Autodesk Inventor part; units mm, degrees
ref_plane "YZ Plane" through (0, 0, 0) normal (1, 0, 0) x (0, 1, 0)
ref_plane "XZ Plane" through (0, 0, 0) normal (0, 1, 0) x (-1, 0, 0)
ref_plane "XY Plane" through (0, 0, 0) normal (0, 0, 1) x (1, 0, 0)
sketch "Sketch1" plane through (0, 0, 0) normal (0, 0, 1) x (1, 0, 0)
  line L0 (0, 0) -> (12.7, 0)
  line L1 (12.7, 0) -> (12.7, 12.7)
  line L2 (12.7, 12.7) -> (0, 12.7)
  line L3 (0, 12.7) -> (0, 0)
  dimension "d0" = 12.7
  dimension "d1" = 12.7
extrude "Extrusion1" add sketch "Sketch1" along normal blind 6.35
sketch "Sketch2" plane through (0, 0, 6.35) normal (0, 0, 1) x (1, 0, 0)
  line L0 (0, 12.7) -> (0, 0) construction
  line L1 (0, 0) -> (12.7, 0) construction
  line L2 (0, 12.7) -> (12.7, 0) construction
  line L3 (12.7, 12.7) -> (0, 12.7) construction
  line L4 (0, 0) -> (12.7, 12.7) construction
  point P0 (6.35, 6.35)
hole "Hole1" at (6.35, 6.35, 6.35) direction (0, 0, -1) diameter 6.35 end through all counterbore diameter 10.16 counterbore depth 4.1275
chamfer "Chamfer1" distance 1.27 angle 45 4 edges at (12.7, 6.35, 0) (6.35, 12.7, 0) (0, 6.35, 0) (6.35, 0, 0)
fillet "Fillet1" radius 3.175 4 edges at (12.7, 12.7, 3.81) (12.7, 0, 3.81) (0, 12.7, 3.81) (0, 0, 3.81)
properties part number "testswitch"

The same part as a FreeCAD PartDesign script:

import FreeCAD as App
import Part
import Sketcher

V = App.Vector
Q = App.Units.Quantity


def edges_at(feature, points):
    """Names of the edges that pass closest to the given points."""
    edges = feature.Shape.Edges
    near = lambda p: min(range(len(edges)), key=lambda i: edges[i].distToShape(Part.Vertex(*p))[0])
    return sorted({f"Edge{near(p) + 1}" for p in points})


def add_polygon(sketch, points):
    """Adds a closed chain of lines whose ends are joined by coincident constraints."""
    first, n = sketch.GeometryCount, len(points)
    for a, b in zip(points, points[1:] + points[:1]):
        sketch.addGeometry(Part.LineSegment(App.Vector(*a, 0), App.Vector(*b, 0)), False)
    for i in range(n):
        sketch.addConstraint(Sketcher.Constraint("Coincident", first + i, 2, first + (i + 1) % n, 1))

doc = App.newDocument("Part")
body = doc.addObject("PartDesign::Body", "Body")

sketch1 = doc.addObject("Sketcher::SketchObject", "Sketch")
body.addObject(sketch1)
sketch1.AttachmentSupport = (doc.XY_Plane, [""])
sketch1.MapMode = "FlatFace"
add_polygon(sketch1, [(0, 12.7), (0, 0), (12.7, 0), (12.7, 12.7)])
sketch1.addConstraint(Sketcher.Constraint("Vertical", 0))
sketch1.addConstraint(Sketcher.Constraint("Horizontal", 1))
sketch1.addConstraint(Sketcher.Constraint("Vertical", 2))
sketch1.addConstraint(Sketcher.Constraint("Horizontal", 3))
sketch1.addConstraint(Sketcher.Constraint("Coincident", 0, 2, -1, 1))
sketch1.addConstraint(Sketcher.Constraint("Equal", 3, 0))
sketch1.addConstraint(Sketcher.Constraint("DistanceX", 1, 1, 1, 2, Q("0.5 in")))
pad1 = doc.addObject("PartDesign::Pad", "Pad")
body.addObject(pad1)
pad1.Profile = sketch1
pad1.Length = Q("0.25 in")

sketch2 = doc.addObject("Sketcher::SketchObject", "Sketch001")
body.addObject(sketch2)
sketch2.AttachmentSupport = (doc.XY_Plane, [""])
sketch2.MapMode = "FlatFace"
sketch2.AttachmentOffset = App.Placement(V(0, 0, 0.25 * 25.4), App.Rotation())
sketch2.addGeometry(Part.Circle(V(6.35, 6.35, 0), V(0, 0, 1), 3.175), False)
sketch2.addConstraint(Sketcher.Constraint("Diameter", 0, Q("0.25 in")))
sketch2.addConstraint(Sketcher.Constraint("DistanceX", -1, 1, 0, 3, Q("0.25 in")))
sketch2.addConstraint(Sketcher.Constraint("DistanceY", -1, 1, 0, 3, Q("0.25 in")))
doc.recompute()
hole = doc.addObject("PartDesign::Hole", "Hole")
body.addObject(hole)
hole.Profile = sketch2
hole.ThreadType = "None"
hole.Diameter = Q("0.25 in")
hole.DepthType = "ThroughAll"
hole.HoleCutType = "Counterbore"
hole.HoleCutDiameter = Q("0.4 in")
hole.HoleCutDepth = Q("0.1625 in")
doc.recompute()

chamfer = doc.addObject("PartDesign::Chamfer", "Chamfer")
body.addObject(chamfer)
chamfer.Base = (hole, edges_at(hole, [
    (12.7, 6.35, 0),
    (6.35, 12.7, 0),
    (0, 6.35, 0),
    (6.35, 0, 0),
]))
chamfer.Size = Q("0.05 in")
doc.recompute()

fillet = doc.addObject("PartDesign::Fillet", "Fillet")
body.addObject(fillet)
fillet.Base = (chamfer, edges_at(chamfer, [
    (12.7, 12.7, 3.81),
    (12.7, 0, 3.81),
    (0, 12.7, 3.81),
    (0, 0, 3.81),
]))
fillet.Radius = Q("0.125 in")

doc.recompute()
